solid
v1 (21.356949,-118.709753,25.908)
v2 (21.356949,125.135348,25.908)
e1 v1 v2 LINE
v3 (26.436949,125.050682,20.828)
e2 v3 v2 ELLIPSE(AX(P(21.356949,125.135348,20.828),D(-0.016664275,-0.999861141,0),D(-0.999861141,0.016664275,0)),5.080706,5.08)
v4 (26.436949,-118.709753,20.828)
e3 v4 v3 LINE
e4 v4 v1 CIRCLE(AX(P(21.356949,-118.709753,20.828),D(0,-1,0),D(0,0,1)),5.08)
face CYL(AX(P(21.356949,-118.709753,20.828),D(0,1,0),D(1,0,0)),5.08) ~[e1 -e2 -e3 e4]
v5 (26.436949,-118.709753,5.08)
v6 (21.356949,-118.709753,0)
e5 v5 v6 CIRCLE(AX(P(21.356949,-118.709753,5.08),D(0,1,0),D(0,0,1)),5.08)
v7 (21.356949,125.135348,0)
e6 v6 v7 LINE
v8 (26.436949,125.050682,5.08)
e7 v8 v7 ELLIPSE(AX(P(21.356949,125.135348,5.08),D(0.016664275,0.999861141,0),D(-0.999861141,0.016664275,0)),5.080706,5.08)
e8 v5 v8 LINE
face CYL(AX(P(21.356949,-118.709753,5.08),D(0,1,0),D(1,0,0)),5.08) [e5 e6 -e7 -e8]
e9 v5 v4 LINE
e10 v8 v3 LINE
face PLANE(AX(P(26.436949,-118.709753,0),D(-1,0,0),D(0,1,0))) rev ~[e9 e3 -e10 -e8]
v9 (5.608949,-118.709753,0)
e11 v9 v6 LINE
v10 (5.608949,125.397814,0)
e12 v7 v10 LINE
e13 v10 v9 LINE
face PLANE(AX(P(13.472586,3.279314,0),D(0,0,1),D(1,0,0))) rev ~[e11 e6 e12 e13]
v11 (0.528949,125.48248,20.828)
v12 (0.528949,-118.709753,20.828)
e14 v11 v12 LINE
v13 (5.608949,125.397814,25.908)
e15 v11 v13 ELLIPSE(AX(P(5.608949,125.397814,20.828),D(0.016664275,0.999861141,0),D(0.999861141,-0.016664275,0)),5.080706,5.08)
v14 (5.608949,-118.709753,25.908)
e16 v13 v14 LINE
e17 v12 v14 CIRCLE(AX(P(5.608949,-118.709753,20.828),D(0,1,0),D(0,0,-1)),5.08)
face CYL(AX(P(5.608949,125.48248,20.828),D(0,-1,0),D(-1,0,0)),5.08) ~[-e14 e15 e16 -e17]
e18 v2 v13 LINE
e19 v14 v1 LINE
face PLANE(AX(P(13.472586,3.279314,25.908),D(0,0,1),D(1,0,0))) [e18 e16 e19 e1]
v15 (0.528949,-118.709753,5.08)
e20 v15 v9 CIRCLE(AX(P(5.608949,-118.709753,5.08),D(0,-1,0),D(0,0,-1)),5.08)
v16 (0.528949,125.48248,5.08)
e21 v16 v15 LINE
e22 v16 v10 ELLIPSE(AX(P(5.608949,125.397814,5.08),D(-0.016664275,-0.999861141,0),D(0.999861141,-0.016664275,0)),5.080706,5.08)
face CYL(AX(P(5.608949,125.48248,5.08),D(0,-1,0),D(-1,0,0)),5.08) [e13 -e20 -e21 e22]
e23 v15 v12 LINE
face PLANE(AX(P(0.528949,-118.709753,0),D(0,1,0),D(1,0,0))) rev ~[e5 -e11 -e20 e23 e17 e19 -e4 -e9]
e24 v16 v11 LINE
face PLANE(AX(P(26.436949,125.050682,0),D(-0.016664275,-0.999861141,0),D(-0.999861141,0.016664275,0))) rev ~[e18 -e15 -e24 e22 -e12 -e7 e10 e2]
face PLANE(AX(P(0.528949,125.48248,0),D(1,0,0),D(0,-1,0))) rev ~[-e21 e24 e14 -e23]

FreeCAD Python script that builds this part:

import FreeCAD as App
import Part
import Sketcher

V = App.Vector
Q = App.Units.Quantity


def edges_at(feature, points):
    """Names of the edges that pass closest to the given points."""
    edges = feature.Shape.Edges
    near = lambda p: min(range(len(edges)), key=lambda i: edges[i].distToShape(Part.Vertex(*p))[0])
    return sorted({f"Edge{near(p) + 1}" for p in points})


def add_polygon(sketch, points):
    """Adds a closed chain of lines whose ends are joined by coincident constraints."""
    first, n = sketch.GeometryCount, len(points)
    for a, b in zip(points, points[1:] + points[:1]):
        sketch.addGeometry(Part.LineSegment(App.Vector(*a, 0), App.Vector(*b, 0)), False)
    for i in range(n):
        sketch.addConstraint(Sketcher.Constraint("Coincident", first + i, 2, first + (i + 1) % n, 1))

doc = App.newDocument("Part")
body = doc.addObject("PartDesign::Body", "Body")

sketch1 = body.newObject("Sketcher::SketchObject", "Sketch")
sketch1.AttachmentSupport = (doc.getObject("XY_Plane"), [""])
sketch1.MapMode = "FlatFace"
add_polygon(sketch1, [(26.436949, -118.709753), (26.436949, 125.050682), (0.528949, 125.48248), (0.528949, -118.709753)])
sketch1.addConstraint(Sketcher.Constraint("Vertical", 0))
sketch1.addConstraint(Sketcher.Constraint("Vertical", 2))
sketch1.addConstraint(Sketcher.Constraint("Horizontal", 3))
sketch1.addConstraint(Sketcher.Constraint("DistanceX", 3, 1, 3, 2, Q("1.02 in")))
sketch1.addConstraint(Sketcher.Constraint("DistanceY", 0, 2, 1, 2, Q("0.0169999 in")))
sketch1.addConstraint(Sketcher.Constraint("DistanceY", 0, 1, 0, 2, Q("243.760435 mm")))
sketch1.addConstraint(Sketcher.Constraint("DistanceX", -1, 1, 0, 2, Q("26.436949 mm")))
sketch1.addConstraint(Sketcher.Constraint("DistanceY", -1, 1, 0, 2, Q("125.050682 mm")))
pad1 = body.newObject("PartDesign::Pad", "Pad")
pad1.Profile = sketch1
pad1.Length = Q("1.02 in")
doc.recompute()

fillet = body.newObject("PartDesign::Fillet", "Fillet")
fillet.Base = (pad1, edges_at(pad1, [
    (0.529, 3.386, 25.908),
    (26.437, 3.17, 25.908),
    (0.529, 3.386, 0),
    (26.437, 3.17, 0),
]))
fillet.Radius = Q("0.2 in")

doc.recompute()
